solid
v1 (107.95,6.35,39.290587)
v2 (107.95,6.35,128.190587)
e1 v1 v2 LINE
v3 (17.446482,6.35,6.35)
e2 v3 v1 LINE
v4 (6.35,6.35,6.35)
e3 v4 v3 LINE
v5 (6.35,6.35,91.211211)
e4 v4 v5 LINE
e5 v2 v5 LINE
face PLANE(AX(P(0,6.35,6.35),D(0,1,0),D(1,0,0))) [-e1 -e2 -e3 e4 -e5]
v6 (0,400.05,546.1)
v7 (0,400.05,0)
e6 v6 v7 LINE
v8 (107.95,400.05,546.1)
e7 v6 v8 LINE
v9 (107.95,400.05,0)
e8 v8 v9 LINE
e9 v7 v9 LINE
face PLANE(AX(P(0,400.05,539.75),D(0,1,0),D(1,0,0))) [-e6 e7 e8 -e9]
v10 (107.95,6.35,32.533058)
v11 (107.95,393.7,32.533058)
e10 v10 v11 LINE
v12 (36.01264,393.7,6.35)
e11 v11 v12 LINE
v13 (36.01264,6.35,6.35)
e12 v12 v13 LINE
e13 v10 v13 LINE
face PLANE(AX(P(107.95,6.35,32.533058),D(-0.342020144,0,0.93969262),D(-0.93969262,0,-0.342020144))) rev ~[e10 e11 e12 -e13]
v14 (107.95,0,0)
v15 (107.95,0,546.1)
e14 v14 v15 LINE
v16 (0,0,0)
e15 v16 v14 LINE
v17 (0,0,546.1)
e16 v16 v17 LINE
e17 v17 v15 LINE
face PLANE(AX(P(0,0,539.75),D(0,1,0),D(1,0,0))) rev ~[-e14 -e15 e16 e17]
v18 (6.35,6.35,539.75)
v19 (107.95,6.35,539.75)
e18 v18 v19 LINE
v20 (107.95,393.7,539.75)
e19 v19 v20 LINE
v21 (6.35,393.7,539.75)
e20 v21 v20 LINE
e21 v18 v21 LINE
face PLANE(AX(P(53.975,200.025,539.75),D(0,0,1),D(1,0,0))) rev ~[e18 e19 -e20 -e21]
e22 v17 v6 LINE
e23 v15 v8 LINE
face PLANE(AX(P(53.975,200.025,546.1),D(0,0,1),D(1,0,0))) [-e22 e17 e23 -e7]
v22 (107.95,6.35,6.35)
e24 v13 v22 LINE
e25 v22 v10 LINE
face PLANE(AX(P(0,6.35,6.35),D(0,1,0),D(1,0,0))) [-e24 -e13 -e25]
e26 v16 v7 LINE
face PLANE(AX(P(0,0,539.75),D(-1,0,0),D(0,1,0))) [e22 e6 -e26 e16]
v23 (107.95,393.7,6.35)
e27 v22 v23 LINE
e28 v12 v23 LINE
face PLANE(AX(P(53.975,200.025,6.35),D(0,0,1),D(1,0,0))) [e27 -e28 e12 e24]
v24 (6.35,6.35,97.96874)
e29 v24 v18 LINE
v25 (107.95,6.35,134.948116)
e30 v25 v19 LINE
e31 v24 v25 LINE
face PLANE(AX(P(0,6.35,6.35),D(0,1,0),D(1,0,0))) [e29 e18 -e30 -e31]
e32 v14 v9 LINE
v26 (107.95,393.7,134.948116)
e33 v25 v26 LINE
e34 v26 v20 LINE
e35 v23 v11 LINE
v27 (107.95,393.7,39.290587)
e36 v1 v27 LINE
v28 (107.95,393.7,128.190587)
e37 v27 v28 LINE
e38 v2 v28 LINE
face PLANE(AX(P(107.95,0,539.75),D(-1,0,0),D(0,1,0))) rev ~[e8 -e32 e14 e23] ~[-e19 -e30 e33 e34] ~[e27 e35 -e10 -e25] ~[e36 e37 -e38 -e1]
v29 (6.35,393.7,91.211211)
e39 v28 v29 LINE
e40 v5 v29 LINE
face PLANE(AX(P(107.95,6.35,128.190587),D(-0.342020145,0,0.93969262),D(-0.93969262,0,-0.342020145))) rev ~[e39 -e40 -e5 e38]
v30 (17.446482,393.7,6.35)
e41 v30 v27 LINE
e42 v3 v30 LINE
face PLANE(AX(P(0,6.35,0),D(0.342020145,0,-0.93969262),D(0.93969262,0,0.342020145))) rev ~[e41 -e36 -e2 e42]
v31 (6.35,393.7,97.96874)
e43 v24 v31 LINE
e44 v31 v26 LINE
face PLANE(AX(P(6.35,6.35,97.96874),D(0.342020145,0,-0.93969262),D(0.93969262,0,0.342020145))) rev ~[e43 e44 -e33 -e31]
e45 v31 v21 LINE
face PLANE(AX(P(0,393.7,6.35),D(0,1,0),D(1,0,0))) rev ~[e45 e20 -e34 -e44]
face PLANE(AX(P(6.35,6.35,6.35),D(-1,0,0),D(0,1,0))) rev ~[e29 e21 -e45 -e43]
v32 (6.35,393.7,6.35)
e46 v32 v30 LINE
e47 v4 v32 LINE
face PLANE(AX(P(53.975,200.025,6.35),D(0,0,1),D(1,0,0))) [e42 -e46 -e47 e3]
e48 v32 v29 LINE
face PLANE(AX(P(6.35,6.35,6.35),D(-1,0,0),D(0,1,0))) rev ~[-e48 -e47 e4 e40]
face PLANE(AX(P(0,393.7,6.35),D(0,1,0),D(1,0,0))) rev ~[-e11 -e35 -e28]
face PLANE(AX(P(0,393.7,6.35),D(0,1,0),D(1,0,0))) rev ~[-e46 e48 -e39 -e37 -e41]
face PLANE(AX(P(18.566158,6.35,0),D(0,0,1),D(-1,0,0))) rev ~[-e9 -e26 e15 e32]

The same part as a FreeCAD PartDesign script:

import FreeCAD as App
import Part
import Sketcher
from FreeCAD import Vector
Q = App.Units.Quantity

doc = App.newDocument("Part")
body = doc.addObject("PartDesign::Body", "Body")

# Sketch on XY plane
sketch1 = body.newObject("Sketcher::SketchObject", "Sketch")
sketch1.AttachmentSupport = (doc.getObject("XY_Plane"), [""])
sketch1.MapMode = "FlatFace"
sketch1.addGeometry([
    Part.LineSegment(Vector(0, 400, 0), Vector(0, 0, 0)),
    Part.LineSegment(Vector(0, 0, 0), Vector(108, 0, 0)),
    Part.LineSegment(Vector(108, 0, 0), Vector(108, 400, 0)),
    Part.LineSegment(Vector(108, 400, 0), Vector(0, 400, 0)),
], False)
sketch1.addConstraint([
    Sketcher.Constraint("Coincident", 0, 2, 1, 1),
    Sketcher.Constraint("Coincident", 1, 2, 2, 1),
    Sketcher.Constraint("Coincident", 2, 2, 3, 1),
    Sketcher.Constraint("Coincident", 3, 2, 0, 1),
    Sketcher.Constraint("Vertical", 0),
    Sketcher.Constraint("Horizontal", 1),
    Sketcher.Constraint("Vertical", 2),
    Sketcher.Constraint("Horizontal", 3),
    Sketcher.Constraint("Coincident", 0, 2, -1, 1),
    Sketcher.Constraint("DistanceX", 1, 1, 1, 2, Q("4.25 in")),
    Sketcher.Constraint("DistanceY", 0, 2, 0, 1, Q("15.75 in")),
])
pad1 = body.newObject("PartDesign::Pad", "Pad")
pad1.Profile = sketch1
pad1.Length = Q("0.25 in")

# Sketch on XY plane
sketch2 = body.newObject("Sketcher::SketchObject", "Sketch001")
sketch2.AttachmentSupport = (doc.getObject("XY_Plane"), [""])
sketch2.MapMode = "FlatFace"
sketch2.AttachmentOffset = App.Placement(Vector(0, 0, 0.25 * 25.4), App.Rotation())
sketch2.addGeometry([
    Part.LineSegment(Vector(0, 6, 0), Vector(0, 0, 0)),  # 0
    Part.LineSegment(Vector(0, 0, 0), Vector(108, 0, 0)),  # 1
    Part.LineSegment(Vector(108, 0, 0), Vector(108, 6, 0)),  # 2
    Part.LineSegment(Vector(108, 6, 0), Vector(0, 6, 0)),  # 3
    Part.LineSegment(Vector(0, 400, 0), Vector(0, 394, 0)),  # 4
    Part.LineSegment(Vector(0, 394, 0), Vector(108, 394, 0)),  # 5
    Part.LineSegment(Vector(108, 394, 0), Vector(108, 400, 0)),  # 6
    Part.LineSegment(Vector(108, 400, 0), Vector(0, 400, 0)),  # 7
], False)
sketch2.addConstraint([
    Sketcher.Constraint("Coincident", 0, 2, 1, 1),
    Sketcher.Constraint("Coincident", 1, 2, 2, 1),
    Sketcher.Constraint("Coincident", 2, 2, 3, 1),
    Sketcher.Constraint("Coincident", 3, 2, 0, 1),
    Sketcher.Constraint("Coincident", 4, 2, 5, 1),
    Sketcher.Constraint("Coincident", 5, 2, 6, 1),
    Sketcher.Constraint("Coincident", 6, 2, 7, 1),
    Sketcher.Constraint("Coincident", 7, 2, 4, 1),
    Sketcher.Constraint("Vertical", 0),
    Sketcher.Constraint("Horizontal", 1),
    Sketcher.Constraint("Vertical", 2),
    Sketcher.Constraint("Horizontal", 3),
    Sketcher.Constraint("Vertical", 4),
    Sketcher.Constraint("Horizontal", 5),
    Sketcher.Constraint("Vertical", 6),
    Sketcher.Constraint("Horizontal", 7),
    Sketcher.Constraint("Coincident", 0, 2, -1, 1),
    Sketcher.Constraint("PointOnObject", 4, 2, -2),
    Sketcher.Constraint("Vertical", 2, 2, 5, 2),
    Sketcher.Constraint("Equal", 2, 4),
    Sketcher.Constraint("DistanceX", 1, 1, 1, 2, Q("4.25 in")),
    Sketcher.Constraint("DistanceY", 0, 2, 0, 1, Q("0.25 in")),
    Sketcher.Constraint("DistanceY", -1, 1, 4, 2, Q("15.5 in")),
])
pad2 = body.newObject("PartDesign::Pad", "Pad001")
pad2.Profile = sketch2
pad2.Length = Q("21 in")

# Sketch on XY plane
sketch3 = body.newObject("Sketcher::SketchObject", "Sketch002")
sketch3.AttachmentSupport = (doc.getObject("XY_Plane"), [""])
sketch3.MapMode = "FlatFace"
sketch3.AttachmentOffset = App.Placement(Vector(0, 0, 0.25 * 25.4), App.Rotation())
sketch3.addGeometry([
    Part.LineSegment(Vector(0, 394, 0), Vector(0, 6, 0)),
    Part.LineSegment(Vector(0, 6, 0), Vector(6, 6, 0)),
    Part.LineSegment(Vector(6, 6, 0), Vector(6, 394, 0)),
    Part.LineSegment(Vector(6, 394, 0), Vector(0, 394, 0)),
], False)
sketch3.addConstraint([
    Sketcher.Constraint("Coincident", 0, 2, 1, 1),
    Sketcher.Constraint("Coincident", 1, 2, 2, 1),
    Sketcher.Constraint("Coincident", 2, 2, 3, 1),
    Sketcher.Constraint("Coincident", 3, 2, 0, 1),
    Sketcher.Constraint("Vertical", 0),
    Sketcher.Constraint("Horizontal", 1),
    Sketcher.Constraint("Vertical", 2),
    Sketcher.Constraint("Horizontal", 3),
    Sketcher.Constraint("PointOnObject", 0, 2, -2),
    Sketcher.Constraint("DistanceX", 1, 1, 1, 2, Q("0.25 in")),
    Sketcher.Constraint("DistanceY", 0, 2, 0, 1, Q("15.25 in")),
    Sketcher.Constraint("DistanceY", -1, 1, 2, 2, Q("15.5 in")),
])
pad3 = body.newObject("PartDesign::Pad", "Pad002")
pad3.Profile = sketch3
pad3.Length = Q("21 in")

# Sketch on XY plane
sketch4 = body.newObject("Sketcher::SketchObject", "Sketch003")
sketch4.AttachmentSupport = (doc.getObject("XY_Plane"), [""])
sketch4.MapMode = "FlatFace"
sketch4.AttachmentOffset = App.Placement(Vector(0, 0, 21.25 * 25.4), App.Rotation())
sketch4.addGeometry([
    Part.LineSegment(Vector(0, 400, 0), Vector(0, 0, 0)),
    Part.LineSegment(Vector(0, 0, 0), Vector(108, 0, 0)),
    Part.LineSegment(Vector(108, 0, 0), Vector(108, 400, 0)),
    Part.LineSegment(Vector(108, 400, 0), Vector(0, 400, 0)),
], False)
sketch4.addConstraint([
    Sketcher.Constraint("Coincident", 0, 2, 1, 1),
    Sketcher.Constraint("Coincident", 1, 2, 2, 1),
    Sketcher.Constraint("Coincident", 2, 2, 3, 1),
    Sketcher.Constraint("Coincident", 3, 2, 0, 1),
    Sketcher.Constraint("Vertical", 0),
    Sketcher.Constraint("Horizontal", 1),
    Sketcher.Constraint("Vertical", 2),
    Sketcher.Constraint("Horizontal", 3),
    Sketcher.Constraint("Coincident", 0, 2, -1, 1),
    Sketcher.Constraint("DistanceX", 1, 1, 1, 2, Q("4.25 in")),
    Sketcher.Constraint("DistanceY", 0, 2, 0, 1, Q("15.75 in")),
])
pad4 = body.newObject("PartDesign::Pad", "Pad003")
pad4.Profile = sketch4
pad4.Length = Q("0.25 in")

# Sketch on XZ plane
sketch5 = body.newObject("Sketcher::SketchObject", "Sketch004")
sketch5.AttachmentSupport = (doc.getObject("XZ_Plane"), [""])
sketch5.MapMode = "FlatFace"
sketch5.AttachmentOffset = App.Placement(Vector(0, 0, -0.25 * 25.4), App.Rotation())
sketch5.addGeometry([
    Part.LineSegment(Vector(19, 0, 0), Vector(0, 0, 0)),
    Part.LineSegment(Vector(0, 0, 0), Vector(108, 39, 0)),
    Part.LineSegment(Vector(108, 39, 0), Vector(108, 33, 0)),
    Part.LineSegment(Vector(108, 33, 0), Vector(19, 0, 0)),
], False)
sketch5.addConstraint([
    Sketcher.Constraint("Coincident", 0, 2, 1, 1),
    Sketcher.Constraint("Coincident", 1, 2, 2, 1),
    Sketcher.Constraint("Coincident", 2, 2, 3, 1),
    Sketcher.Constraint("Coincident", 3, 2, 0, 1),
    Sketcher.Constraint("Horizontal", 0),
    Sketcher.Constraint("Vertical", 2),
    Sketcher.Constraint("Coincident", 0, 2, -1, 1),
    Sketcher.Constraint("Parallel", 1, 3),
    Sketcher.Constraint("Angle", 1, Q("20 deg")),
    Sketcher.Constraint("DistanceX", -1, 1, 1, 2, Q("4.25 in")),
    Sketcher.Constraint("DistanceX", 0, 2, 0, 1, 18.566158),
])
pad5 = body.newObject("PartDesign::Pad", "Pad004")
pad5.Profile = sketch5
pad5.Length = Q("15.25 in")
pad5.Reversed = True

# Sketch on XZ plane
sketch6 = body.newObject("Sketcher::SketchObject", "Sketch005")
sketch6.AttachmentSupport = (doc.getObject("XZ_Plane"), [""])
sketch6.MapMode = "FlatFace"
sketch6.AttachmentOffset = App.Placement(Vector(0, 0, -0.25 * 25.4), App.Rotation())
sketch6.addGeometry([
    Part.LineSegment(Vector(108, 135, 0), Vector(108, 128, 0)),
    Part.LineSegment(Vector(108, 128, 0), Vector(6, 91, 0)),
    Part.LineSegment(Vector(6, 91, 0), Vector(6, 98, 0)),
    Part.LineSegment(Vector(6, 98, 0), Vector(108, 135, 0)),
], False)
sketch6.addConstraint([
    Sketcher.Constraint("Coincident", 0, 2, 1, 1),
    Sketcher.Constraint("Coincident", 1, 2, 2, 1),
    Sketcher.Constraint("Coincident", 2, 2, 3, 1),
    Sketcher.Constraint("Coincident", 3, 2, 0, 1),
    Sketcher.Constraint("Vertical", 0),
    Sketcher.Constraint("Vertical", 2),
    Sketcher.Constraint("Parallel", 1, 3),
    Sketcher.Constraint("Angle", 1, Q("-160 deg")),
    Sketcher.Constraint("DistanceX", 1, 2, 0, 2, Q("4 in")),
    Sketcher.Constraint("DistanceX", -1, 1, 0, 2, Q("4.25 in")),
    Sketcher.Constraint("DistanceY", 0, 2, 0, 1, 6.757529),
    Sketcher.Constraint("DistanceY", -1, 1, 1, 2, 91.211211),
])
pad6 = body.newObject("PartDesign::Pad", "Pad005")
pad6.Profile = sketch6
pad6.Length = Q("15.25 in")
pad6.Reversed = True

doc.recompute()
